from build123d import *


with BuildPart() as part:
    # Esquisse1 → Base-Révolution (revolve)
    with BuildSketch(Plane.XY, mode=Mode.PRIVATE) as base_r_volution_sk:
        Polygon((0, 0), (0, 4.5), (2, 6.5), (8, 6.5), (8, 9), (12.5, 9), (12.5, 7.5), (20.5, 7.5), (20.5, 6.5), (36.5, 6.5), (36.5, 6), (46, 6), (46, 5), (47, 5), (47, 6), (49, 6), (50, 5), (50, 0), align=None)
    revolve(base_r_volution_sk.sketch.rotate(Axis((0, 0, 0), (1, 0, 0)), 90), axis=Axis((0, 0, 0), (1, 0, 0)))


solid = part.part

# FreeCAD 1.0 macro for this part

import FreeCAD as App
import Part
import Sketcher
from FreeCAD import Vector
Q = App.Units.Quantity

doc = App.newDocument("Part")
body = doc.addObject("PartDesign::Body", "Body")

# Sketch on XY plane
sketch1 = body.newObject("Sketcher::SketchObject", "Sketch")
sketch1.AttachmentSupport = (doc.getObject("XY_Plane"), [""])
sketch1.MapMode = "FlatFace"
sketch1.addGeometry([
    Part.LineSegment(Vector(0, 4.5, 0), Vector(0, 0, 0)),  # 0
    Part.LineSegment(Vector(0, 0, 0), Vector(50, 0, 0)),  # 1
    Part.LineSegment(Vector(50, 0, 0), Vector(50, 5, 0)),  # 2
    Part.LineSegment(Vector(50, 5, 0), Vector(49, 6, 0)),  # 3
    Part.LineSegment(Vector(49, 6, 0), Vector(47, 6, 0)),  # 4
    Part.LineSegment(Vector(47, 6, 0), Vector(47, 5, 0)),  # 5
    Part.LineSegment(Vector(47, 5, 0), Vector(46, 5, 0)),  # 6
    Part.LineSegment(Vector(46, 5, 0), Vector(46, 6, 0)),  # 7
    Part.LineSegment(Vector(46, 6, 0), Vector(36.5, 6, 0)),  # 8
    Part.LineSegment(Vector(36.5, 6, 0), Vector(36.5, 6.5, 0)),  # 9
    Part.LineSegment(Vector(36.5, 6.5, 0), Vector(20.5, 6.5, 0)),  # 10
    Part.LineSegment(Vector(20.5, 6.5, 0), Vector(20.5, 7.5, 0)),  # 11
    Part.LineSegment(Vector(20.5, 7.5, 0), Vector(12.5, 7.5, 0)),  # 12
    Part.LineSegment(Vector(12.5, 7.5, 0), Vector(12.5, 9, 0)),  # 13
    Part.LineSegment(Vector(12.5, 9, 0), Vector(8, 9, 0)),  # 14
    Part.LineSegment(Vector(8, 9, 0), Vector(8, 6.5, 0)),  # 15
    Part.LineSegment(Vector(8, 6.5, 0), Vector(2, 6.5, 0)),  # 16
    Part.LineSegment(Vector(2, 6.5, 0), Vector(0, 4.5, 0)),  # 17
], False)
sketch1.addConstraint([
    Sketcher.Constraint("Coincident", 0, 2, 1, 1),
    Sketcher.Constraint("Coincident", 1, 2, 2, 1),
    Sketcher.Constraint("Coincident", 2, 2, 3, 1),
    Sketcher.Constraint("Coincident", 3, 2, 4, 1),
    Sketcher.Constraint("Coincident", 4, 2, 5, 1),
    Sketcher.Constraint("Coincident", 5, 2, 6, 1),
    Sketcher.Constraint("Coincident", 6, 2, 7, 1),
    Sketcher.Constraint("Coincident", 7, 2, 8, 1),
    Sketcher.Constraint("Coincident", 8, 2, 9, 1),
    Sketcher.Constraint("Coincident", 9, 2, 10, 1),
    Sketcher.Constraint("Coincident", 10, 2, 11, 1),
    Sketcher.Constraint("Coincident", 11, 2, 12, 1),
    Sketcher.Constraint("Coincident", 12, 2, 13, 1),
    Sketcher.Constraint("Coincident", 13, 2, 14, 1),
    Sketcher.Constraint("Coincident", 14, 2, 15, 1),
    Sketcher.Constraint("Coincident", 15, 2, 16, 1),
    Sketcher.Constraint("Coincident", 16, 2, 17, 1),
    Sketcher.Constraint("Coincident", 17, 2, 0, 1),
    Sketcher.Constraint("Vertical", 0),
    Sketcher.Constraint("Horizontal", 1),
    Sketcher.Constraint("Vertical", 2),
    Sketcher.Constraint("Horizontal", 4),
    Sketcher.Constraint("Vertical", 5),
    Sketcher.Constraint("Horizontal", 6),
    Sketcher.Constraint("Vertical", 7),
    Sketcher.Constraint("Horizontal", 8),
    Sketcher.Constraint("Vertical", 9),
    Sketcher.Constraint("Horizontal", 10),
    Sketcher.Constraint("Vertical", 11),
    Sketcher.Constraint("Horizontal", 12),
    Sketcher.Constraint("Vertical", 13),
    Sketcher.Constraint("Horizontal", 14),
    Sketcher.Constraint("Vertical", 15),
    Sketcher.Constraint("Horizontal", 16),
    Sketcher.Constraint("Coincident", 0, 2, -1, 1),
    Sketcher.Constraint("Perpendicular", 3, 17),
    Sketcher.Constraint("Horizontal", 2, 2, 5, 2),
    Sketcher.Constraint("Horizontal", 4, 2, 7, 2),
    Sketcher.Constraint("Horizontal", 10, 2, 15, 2),
    Sketcher.Constraint("Equal", 14, 0),
    Sketcher.Constraint("Equal", 6, 5),
    Sketcher.Constraint("Equal", 7, 11),
    Sketcher.Constraint("DistanceX", 1, 1, 1, 2, 50.0),
    Sketcher.Constraint("DistanceX", 4, 2, 4, 1, 2.0),
    Sketcher.Constraint("DistanceX", 6, 2, 6, 1, 1.0),
    Sketcher.Constraint("DistanceX", 10, 2, 10, 1, 16.0),
    Sketcher.Constraint("DistanceX", 12, 2, 12, 1, 8.0),
    Sketcher.Constraint("DistanceX", 16, 2, 16, 1, 6.0),
    Sketcher.Constraint("DistanceY", 2, 1, 2, 2, 5.0),
    Sketcher.Constraint("Angle", 3, Q("135 deg")),
    Sketcher.Constraint("DistanceX", 8, 2, 8, 1, 9.5),
    Sketcher.Constraint("DistanceX", 14, 2, 14, 1, 4.5),
    Sketcher.Constraint("DistanceY", 13, 1, 13, 2, 1.5),
])
revolution = body.newObject("PartDesign::Revolution", "Revolution")
revolution.Profile = sketch1
revolution.ReferenceAxis = (sketch1, ["H_Axis"])
revolution.Angle = 360

doc.recompute()
